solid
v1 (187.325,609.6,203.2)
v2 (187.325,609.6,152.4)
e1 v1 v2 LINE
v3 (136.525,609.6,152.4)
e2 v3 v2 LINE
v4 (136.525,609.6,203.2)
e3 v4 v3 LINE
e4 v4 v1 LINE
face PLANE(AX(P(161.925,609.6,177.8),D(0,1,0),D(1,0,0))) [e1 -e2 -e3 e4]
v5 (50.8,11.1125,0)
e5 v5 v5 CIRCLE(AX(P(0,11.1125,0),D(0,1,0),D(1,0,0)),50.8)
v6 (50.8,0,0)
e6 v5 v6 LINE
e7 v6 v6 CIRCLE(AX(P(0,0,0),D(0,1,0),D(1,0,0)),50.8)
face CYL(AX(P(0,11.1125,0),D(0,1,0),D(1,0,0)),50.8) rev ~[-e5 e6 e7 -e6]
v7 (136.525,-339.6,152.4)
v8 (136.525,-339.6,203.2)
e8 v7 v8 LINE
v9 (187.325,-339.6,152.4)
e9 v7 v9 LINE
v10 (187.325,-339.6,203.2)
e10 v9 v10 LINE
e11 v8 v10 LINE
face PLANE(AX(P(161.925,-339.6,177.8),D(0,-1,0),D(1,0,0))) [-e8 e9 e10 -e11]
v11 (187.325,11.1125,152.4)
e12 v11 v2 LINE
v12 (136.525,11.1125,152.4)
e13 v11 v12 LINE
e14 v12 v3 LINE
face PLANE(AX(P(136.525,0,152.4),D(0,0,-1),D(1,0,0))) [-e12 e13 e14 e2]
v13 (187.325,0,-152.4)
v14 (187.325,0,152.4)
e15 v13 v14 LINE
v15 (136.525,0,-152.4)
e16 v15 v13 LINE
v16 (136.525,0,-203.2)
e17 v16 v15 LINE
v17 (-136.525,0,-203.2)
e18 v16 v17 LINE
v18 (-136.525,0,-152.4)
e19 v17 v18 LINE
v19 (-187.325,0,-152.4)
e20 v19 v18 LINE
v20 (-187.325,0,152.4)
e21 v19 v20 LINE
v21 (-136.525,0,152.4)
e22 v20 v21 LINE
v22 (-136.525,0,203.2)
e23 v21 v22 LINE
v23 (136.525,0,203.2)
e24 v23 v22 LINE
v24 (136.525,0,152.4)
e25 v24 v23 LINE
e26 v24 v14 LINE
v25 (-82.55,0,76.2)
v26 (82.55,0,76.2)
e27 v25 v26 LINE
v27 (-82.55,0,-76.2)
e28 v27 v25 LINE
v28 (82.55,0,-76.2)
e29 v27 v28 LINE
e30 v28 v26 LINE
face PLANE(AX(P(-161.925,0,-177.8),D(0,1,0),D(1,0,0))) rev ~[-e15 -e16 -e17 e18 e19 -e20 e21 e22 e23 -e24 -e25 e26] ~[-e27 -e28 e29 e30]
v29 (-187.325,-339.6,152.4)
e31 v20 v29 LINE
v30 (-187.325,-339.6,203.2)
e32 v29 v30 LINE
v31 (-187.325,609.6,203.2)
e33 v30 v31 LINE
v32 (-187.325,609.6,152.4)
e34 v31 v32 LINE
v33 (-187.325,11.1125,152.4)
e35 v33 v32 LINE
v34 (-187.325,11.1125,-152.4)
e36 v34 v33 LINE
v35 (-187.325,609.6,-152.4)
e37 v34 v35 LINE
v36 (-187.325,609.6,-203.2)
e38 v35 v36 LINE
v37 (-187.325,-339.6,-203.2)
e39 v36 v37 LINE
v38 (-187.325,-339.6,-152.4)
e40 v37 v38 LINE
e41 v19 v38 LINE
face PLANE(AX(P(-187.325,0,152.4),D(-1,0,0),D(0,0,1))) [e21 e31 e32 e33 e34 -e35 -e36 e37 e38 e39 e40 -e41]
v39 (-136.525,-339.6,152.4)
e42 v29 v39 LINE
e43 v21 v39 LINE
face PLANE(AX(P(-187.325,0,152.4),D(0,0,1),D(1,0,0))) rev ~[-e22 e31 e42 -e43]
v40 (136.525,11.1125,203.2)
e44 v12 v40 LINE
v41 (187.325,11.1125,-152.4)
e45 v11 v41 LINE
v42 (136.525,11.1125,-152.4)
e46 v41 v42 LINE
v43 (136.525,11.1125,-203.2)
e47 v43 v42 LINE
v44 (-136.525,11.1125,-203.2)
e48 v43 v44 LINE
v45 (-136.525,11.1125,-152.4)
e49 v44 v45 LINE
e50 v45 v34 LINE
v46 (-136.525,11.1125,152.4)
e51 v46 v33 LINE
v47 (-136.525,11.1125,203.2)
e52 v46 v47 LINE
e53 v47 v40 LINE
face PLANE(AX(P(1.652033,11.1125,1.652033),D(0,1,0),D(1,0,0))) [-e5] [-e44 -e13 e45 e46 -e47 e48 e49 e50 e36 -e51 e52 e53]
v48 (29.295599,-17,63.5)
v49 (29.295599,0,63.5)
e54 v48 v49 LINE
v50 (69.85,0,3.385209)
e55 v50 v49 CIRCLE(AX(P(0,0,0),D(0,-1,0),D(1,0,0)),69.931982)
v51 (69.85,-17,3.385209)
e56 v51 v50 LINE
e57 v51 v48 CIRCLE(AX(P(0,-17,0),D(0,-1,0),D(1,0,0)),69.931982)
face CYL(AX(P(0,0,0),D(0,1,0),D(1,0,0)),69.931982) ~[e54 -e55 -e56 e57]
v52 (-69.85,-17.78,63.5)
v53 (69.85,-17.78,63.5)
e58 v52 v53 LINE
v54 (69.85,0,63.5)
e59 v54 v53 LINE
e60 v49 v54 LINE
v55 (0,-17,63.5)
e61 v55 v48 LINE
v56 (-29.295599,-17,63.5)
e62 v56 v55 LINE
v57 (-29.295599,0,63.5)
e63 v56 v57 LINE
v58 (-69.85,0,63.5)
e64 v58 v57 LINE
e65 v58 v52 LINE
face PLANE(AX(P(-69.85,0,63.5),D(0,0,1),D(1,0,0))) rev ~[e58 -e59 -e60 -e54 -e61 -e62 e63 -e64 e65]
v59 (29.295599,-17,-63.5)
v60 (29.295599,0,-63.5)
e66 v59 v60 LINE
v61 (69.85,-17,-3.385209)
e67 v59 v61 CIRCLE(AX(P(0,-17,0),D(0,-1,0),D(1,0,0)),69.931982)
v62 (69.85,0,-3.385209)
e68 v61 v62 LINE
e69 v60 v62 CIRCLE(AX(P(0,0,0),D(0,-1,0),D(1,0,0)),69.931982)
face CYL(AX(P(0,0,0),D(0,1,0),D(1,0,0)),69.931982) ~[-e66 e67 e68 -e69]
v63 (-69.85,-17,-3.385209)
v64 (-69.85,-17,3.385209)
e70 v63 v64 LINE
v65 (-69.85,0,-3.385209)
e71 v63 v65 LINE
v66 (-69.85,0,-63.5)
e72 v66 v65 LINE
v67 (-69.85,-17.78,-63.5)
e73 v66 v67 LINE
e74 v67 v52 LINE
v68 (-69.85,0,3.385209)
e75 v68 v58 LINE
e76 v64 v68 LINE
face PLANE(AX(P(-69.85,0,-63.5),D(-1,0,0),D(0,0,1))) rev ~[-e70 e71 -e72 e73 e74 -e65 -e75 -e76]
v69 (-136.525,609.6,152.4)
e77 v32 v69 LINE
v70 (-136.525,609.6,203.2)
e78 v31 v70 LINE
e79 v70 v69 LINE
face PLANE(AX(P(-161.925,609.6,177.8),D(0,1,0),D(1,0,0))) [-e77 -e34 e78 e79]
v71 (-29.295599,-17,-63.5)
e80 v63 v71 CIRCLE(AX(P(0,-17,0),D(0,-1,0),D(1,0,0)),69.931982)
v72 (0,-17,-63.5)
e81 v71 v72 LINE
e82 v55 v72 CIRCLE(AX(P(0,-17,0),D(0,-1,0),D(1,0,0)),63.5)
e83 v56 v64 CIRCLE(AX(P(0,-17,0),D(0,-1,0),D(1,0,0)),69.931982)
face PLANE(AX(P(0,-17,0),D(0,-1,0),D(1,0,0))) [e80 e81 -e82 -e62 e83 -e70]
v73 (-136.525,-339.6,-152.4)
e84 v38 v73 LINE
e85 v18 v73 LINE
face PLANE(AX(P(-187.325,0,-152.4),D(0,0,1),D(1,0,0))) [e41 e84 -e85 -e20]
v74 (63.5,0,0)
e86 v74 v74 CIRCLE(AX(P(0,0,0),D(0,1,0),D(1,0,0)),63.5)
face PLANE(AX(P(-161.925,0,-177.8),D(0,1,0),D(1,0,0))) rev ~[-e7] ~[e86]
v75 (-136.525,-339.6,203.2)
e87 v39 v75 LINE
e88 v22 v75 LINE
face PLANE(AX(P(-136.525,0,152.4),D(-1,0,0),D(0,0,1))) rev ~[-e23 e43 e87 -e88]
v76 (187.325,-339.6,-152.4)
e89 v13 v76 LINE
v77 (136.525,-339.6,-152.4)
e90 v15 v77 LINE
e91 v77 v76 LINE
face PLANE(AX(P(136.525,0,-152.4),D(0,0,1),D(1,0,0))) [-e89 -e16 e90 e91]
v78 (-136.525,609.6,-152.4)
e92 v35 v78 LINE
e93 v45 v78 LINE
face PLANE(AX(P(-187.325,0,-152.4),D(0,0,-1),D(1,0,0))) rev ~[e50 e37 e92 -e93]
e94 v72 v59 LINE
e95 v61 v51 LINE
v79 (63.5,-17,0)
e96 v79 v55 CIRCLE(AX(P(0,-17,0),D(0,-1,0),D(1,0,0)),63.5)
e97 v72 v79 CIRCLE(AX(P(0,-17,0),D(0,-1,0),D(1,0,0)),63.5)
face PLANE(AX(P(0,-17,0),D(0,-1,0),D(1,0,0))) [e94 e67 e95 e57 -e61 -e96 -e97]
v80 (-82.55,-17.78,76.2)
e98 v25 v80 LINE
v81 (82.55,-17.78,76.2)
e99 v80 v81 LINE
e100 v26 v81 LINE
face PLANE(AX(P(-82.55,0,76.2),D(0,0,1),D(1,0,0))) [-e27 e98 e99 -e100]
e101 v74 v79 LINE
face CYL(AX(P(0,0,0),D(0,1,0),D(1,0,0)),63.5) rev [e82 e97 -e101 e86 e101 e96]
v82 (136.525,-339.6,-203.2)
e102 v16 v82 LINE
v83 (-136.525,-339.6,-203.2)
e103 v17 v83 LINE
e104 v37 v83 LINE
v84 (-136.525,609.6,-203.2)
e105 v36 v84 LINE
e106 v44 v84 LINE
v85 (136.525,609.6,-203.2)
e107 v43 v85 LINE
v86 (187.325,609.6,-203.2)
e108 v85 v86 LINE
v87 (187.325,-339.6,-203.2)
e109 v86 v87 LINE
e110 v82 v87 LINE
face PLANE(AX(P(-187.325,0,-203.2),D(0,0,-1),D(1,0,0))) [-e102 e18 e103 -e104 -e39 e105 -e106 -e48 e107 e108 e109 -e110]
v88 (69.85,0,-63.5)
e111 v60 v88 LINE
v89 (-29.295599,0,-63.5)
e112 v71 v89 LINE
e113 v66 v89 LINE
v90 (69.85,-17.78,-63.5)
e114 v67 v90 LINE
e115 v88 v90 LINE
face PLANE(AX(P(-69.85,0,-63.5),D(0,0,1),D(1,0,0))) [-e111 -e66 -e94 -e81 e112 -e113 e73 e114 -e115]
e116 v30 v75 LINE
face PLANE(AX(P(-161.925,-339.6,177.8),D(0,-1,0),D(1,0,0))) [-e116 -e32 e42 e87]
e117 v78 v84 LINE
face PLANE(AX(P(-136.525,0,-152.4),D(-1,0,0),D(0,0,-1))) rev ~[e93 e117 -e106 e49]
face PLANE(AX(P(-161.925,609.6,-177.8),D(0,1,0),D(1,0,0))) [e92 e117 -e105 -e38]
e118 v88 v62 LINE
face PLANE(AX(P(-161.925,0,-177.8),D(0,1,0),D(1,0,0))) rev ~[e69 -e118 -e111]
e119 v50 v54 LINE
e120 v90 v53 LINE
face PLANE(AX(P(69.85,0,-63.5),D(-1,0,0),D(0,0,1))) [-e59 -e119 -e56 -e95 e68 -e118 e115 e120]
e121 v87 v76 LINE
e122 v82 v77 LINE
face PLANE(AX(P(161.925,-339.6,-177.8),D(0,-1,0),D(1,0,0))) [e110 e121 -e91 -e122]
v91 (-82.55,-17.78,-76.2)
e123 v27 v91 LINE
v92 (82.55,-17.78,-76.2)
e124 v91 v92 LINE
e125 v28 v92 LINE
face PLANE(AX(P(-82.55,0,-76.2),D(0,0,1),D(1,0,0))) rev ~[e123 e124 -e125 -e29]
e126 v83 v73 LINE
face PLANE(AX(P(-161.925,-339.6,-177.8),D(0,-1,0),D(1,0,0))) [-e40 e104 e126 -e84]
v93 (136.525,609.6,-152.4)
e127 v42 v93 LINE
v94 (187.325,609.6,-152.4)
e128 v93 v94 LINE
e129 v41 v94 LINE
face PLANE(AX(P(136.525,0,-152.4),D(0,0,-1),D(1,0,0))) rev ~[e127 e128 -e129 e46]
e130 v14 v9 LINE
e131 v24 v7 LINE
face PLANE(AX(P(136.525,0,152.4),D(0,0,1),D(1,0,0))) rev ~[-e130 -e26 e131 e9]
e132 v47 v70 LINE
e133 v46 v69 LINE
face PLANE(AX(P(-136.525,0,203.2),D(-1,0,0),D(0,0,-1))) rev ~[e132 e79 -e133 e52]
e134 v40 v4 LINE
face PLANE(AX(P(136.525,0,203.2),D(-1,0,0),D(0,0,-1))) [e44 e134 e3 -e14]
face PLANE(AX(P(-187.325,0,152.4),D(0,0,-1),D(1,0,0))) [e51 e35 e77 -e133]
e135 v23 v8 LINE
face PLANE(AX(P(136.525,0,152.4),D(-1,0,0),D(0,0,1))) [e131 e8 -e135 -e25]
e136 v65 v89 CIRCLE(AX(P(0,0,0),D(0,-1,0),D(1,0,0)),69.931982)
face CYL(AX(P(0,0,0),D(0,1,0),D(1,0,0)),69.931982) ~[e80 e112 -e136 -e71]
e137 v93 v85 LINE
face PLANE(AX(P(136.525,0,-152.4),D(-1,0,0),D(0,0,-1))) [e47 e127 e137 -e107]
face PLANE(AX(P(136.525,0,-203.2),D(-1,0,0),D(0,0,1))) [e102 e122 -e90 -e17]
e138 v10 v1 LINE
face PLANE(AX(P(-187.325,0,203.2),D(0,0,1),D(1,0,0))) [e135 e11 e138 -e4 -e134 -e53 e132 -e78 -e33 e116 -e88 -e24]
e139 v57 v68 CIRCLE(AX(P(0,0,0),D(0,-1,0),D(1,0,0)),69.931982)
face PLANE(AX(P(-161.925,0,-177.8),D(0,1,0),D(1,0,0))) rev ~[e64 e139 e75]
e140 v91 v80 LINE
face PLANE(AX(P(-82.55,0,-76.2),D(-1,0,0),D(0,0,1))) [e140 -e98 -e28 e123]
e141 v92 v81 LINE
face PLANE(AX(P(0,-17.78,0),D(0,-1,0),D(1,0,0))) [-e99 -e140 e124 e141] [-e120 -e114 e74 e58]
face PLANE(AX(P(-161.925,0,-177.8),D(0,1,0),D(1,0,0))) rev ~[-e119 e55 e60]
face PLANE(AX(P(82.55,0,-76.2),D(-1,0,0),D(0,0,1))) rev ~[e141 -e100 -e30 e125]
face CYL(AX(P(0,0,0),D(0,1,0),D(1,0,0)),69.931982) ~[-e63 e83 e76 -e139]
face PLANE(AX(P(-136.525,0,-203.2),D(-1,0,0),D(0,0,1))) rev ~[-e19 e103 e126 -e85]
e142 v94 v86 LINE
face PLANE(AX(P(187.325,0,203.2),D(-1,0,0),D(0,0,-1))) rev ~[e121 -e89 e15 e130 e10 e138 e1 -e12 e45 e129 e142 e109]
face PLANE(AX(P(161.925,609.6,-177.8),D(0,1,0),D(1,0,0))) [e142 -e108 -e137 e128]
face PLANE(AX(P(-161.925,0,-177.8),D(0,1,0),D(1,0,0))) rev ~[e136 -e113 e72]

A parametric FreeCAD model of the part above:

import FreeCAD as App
import Part
import Sketcher
Q = App.Units.Quantity


def add_polygon(sketch, points):
    """Adds a closed chain of lines whose ends are joined by coincident constraints."""
    first, n = sketch.GeometryCount, len(points)
    for a, b in zip(points, points[1:] + points[:1]):
        sketch.addGeometry(Part.LineSegment(App.Vector(*a, 0), App.Vector(*b, 0)), False)
    for i in range(n):
        sketch.addConstraint(Sketcher.Constraint("Coincident", first + i, 2, first + (i + 1) % n, 1))

doc = App.newDocument("Part")
body = doc.addObject("PartDesign::Body", "Body")

# Sketch on XZ plane
sketch1 = body.newObject("Sketcher::SketchObject", "Sketch")
sketch1.AttachmentSupport = (doc.getObject("XZ_Plane"), [""])
sketch1.MapMode = "FlatFace"
add_polygon(sketch1, [(-137, -152), (-187, -152), (-187, 203), (187, 203), (187, -203), (-137, -203)])  # lines 0-5
sketch1.addConstraint(Sketcher.Constraint("Horizontal", 0))
sketch1.addConstraint(Sketcher.Constraint("Vertical", 1))
sketch1.addConstraint(Sketcher.Constraint("Horizontal", 2))
sketch1.addConstraint(Sketcher.Constraint("Vertical", 3))
sketch1.addConstraint(Sketcher.Constraint("Horizontal", 4))
sketch1.addConstraint(Sketcher.Constraint("Vertical", 5))
sketch1.addConstraint(Sketcher.Constraint("Symmetric", 1, 2, 3, 2, -1, 1))
sketch1.addConstraint(Sketcher.Constraint("Equal", 0, 5))
sketch1.addConstraint(Sketcher.Constraint("DistanceX", 0, 2, 0, 1, Q("2 in")))
sketch1.addConstraint(Sketcher.Constraint("DistanceY", 1, 1, 1, 2, Q("14 in")))
sketch1.addConstraint(Sketcher.Constraint("DistanceX", 2, 1, 2, 2, Q("14.75 in")))
pad1 = body.newObject("PartDesign::Pad", "Pad")
pad1.Profile = sketch1
pad1.Length = Q("0.4375 in")
pad1.Reversed = True

# Sketch on XZ plane
sketch2 = body.newObject("Sketcher::SketchObject", "Sketch001")
sketch2.AttachmentSupport = (doc.getObject("XZ_Plane"), [""])
sketch2.MapMode = "FlatFace"
add_polygon(sketch2, [(-187, -203), (-187, -152), (-137, -152), (-137, -203)])  # lines 0-3
sketch2.addConstraint(Sketcher.Constraint("Vertical", 0))
sketch2.addConstraint(Sketcher.Constraint("Horizontal", 1))
sketch2.addConstraint(Sketcher.Constraint("Vertical", 2))
sketch2.addConstraint(Sketcher.Constraint("Horizontal", 3))
sketch2.addConstraint(Sketcher.Constraint("Equal", 3, 0))
sketch2.addConstraint(Sketcher.Constraint("DistanceX", 1, 1, 1, 2, Q("2 in")))
sketch2.addConstraint(Sketcher.Constraint("DistanceY", 0, 2, -1, 1, Q("6 in")))
sketch2.addConstraint(Sketcher.Constraint("DistanceX", 0, 2, -1, 1, Q("7.375 in")))
pad2 = body.newObject("PartDesign::Pad", "Pad001")
pad2.Profile = sketch2
pad2.Length = Q("24 in")
pad2.Reversed = True

# Sketch on XZ plane
sketch3 = body.newObject("Sketcher::SketchObject", "Sketch002")
sketch3.AttachmentSupport = (doc.getObject("XZ_Plane"), [""])
sketch3.MapMode = "FlatFace"
add_polygon(sketch3, [(-187, 152), (-187, 203), (-137, 203), (-137, 152)])  # lines 0-3
sketch3.addConstraint(Sketcher.Constraint("Vertical", 0))
sketch3.addConstraint(Sketcher.Constraint("Horizontal", 1))
sketch3.addConstraint(Sketcher.Constraint("Vertical", 2))
sketch3.addConstraint(Sketcher.Constraint("Horizontal", 3))
sketch3.addConstraint(Sketcher.Constraint("Equal", 3, 0))
sketch3.addConstraint(Sketcher.Constraint("DistanceX", 1, 1, 1, 2, Q("2 in")))
sketch3.addConstraint(Sketcher.Constraint("DistanceY", -1, 1, 0, 2, Q("8 in")))
sketch3.addConstraint(Sketcher.Constraint("DistanceX", 0, 2, -1, 1, Q("7.375 in")))
pad3 = body.newObject("PartDesign::Pad", "Pad002")
pad3.Profile = sketch3
pad3.Length = Q("24 in")
pad3.Reversed = True

# Sketch on XZ plane
sketch4 = body.newObject("Sketcher::SketchObject", "Sketch003")
sketch4.AttachmentSupport = (doc.getObject("XZ_Plane"), [""])
sketch4.MapMode = "FlatFace"
add_polygon(sketch4, [(137, -203), (137, -152), (187, -152), (187, -203)])  # lines 0-3
sketch4.addConstraint(Sketcher.Constraint("Vertical", 0))
sketch4.addConstraint(Sketcher.Constraint("Horizontal", 1))
sketch4.addConstraint(Sketcher.Constraint("Vertical", 2))
sketch4.addConstraint(Sketcher.Constraint("Horizontal", 3))
sketch4.addConstraint(Sketcher.Constraint("Equal", 3, 0))
sketch4.addConstraint(Sketcher.Constraint("DistanceX", 1, 1, 1, 2, Q("2 in")))
sketch4.addConstraint(Sketcher.Constraint("DistanceY", 0, 2, -1, 1, Q("6 in")))
sketch4.addConstraint(Sketcher.Constraint("DistanceX", -1, 1, 0, 2, Q("5.375 in")))
pad4 = body.newObject("PartDesign::Pad", "Pad003")
pad4.Profile = sketch4
pad4.Length = Q("24 in")
pad4.Reversed = True

# Sketch on XZ plane
sketch5 = body.newObject("Sketcher::SketchObject", "Sketch004")
sketch5.AttachmentSupport = (doc.getObject("XZ_Plane"), [""])
sketch5.MapMode = "FlatFace"
add_polygon(sketch5, [(137, 152), (137, 203), (187, 203), (187, 152)])  # lines 0-3
sketch5.addConstraint(Sketcher.Constraint("Vertical", 0))
sketch5.addConstraint(Sketcher.Constraint("Horizontal", 1))
sketch5.addConstraint(Sketcher.Constraint("Vertical", 2))
sketch5.addConstraint(Sketcher.Constraint("Horizontal", 3))
sketch5.addConstraint(Sketcher.Constraint("Equal", 3, 0))
sketch5.addConstraint(Sketcher.Constraint("DistanceX", 1, 1, 1, 2, Q("2 in")))
sketch5.addConstraint(Sketcher.Constraint("DistanceY", -1, 1, 0, 2, Q("8 in")))
sketch5.addConstraint(Sketcher.Constraint("DistanceX", -1, 1, 0, 2, Q("5.375 in")))
pad5 = body.newObject("PartDesign::Pad", "Pad004")
pad5.Profile = sketch5
pad5.Length = Q("24 in")
pad5.Reversed = True

# Sketch on XZ plane
sketch6 = body.newObject("Sketcher::SketchObject", "Sketch005")
sketch6.AttachmentSupport = (doc.getObject("XZ_Plane"), [""])
sketch6.MapMode = "FlatFace"
sketch6.AttachmentOffset = App.Placement(App.Vector(0, 0, -0.4375 * 25.4), App.Rotation())
sketch6.addGeometry(Part.Circle(App.Vector(0, 0, 0), App.Vector(0, 0, 1), 51), False)
sketch6.addConstraint(Sketcher.Constraint("Coincident", 0, 3, -1, 1))
sketch6.addConstraint(Sketcher.Constraint("Diameter", 0, Q("4 in")))
pocket1 = body.newObject("PartDesign::Pocket", "Pocket")
pocket1.Profile = sketch6
pocket1.Type = "ThroughAll"
pocket1.Reversed = True

# Sketch on XZ plane
sketch7 = body.newObject("Sketcher::SketchObject", "Sketch006")
sketch7.AttachmentSupport = (doc.getObject("XZ_Plane"), [""])
sketch7.MapMode = "FlatFace"
add_polygon(sketch7, [(-83, 76), (-83, -76), (83, -76), (83, 76)])  # lines 0-3
add_polygon(sketch7, [(70, -64), (-70, -64), (-70, 64), (70, 64)])  # lines 4-7
sketch7.addConstraint(Sketcher.Constraint("Vertical", 0))
sketch7.addConstraint(Sketcher.Constraint("Horizontal", 1))
sketch7.addConstraint(Sketcher.Constraint("Vertical", 2))
sketch7.addConstraint(Sketcher.Constraint("Horizontal", 3))
sketch7.addConstraint(Sketcher.Constraint("Horizontal", 4))
sketch7.addConstraint(Sketcher.Constraint("Vertical", 5))
sketch7.addConstraint(Sketcher.Constraint("Horizontal", 6))
sketch7.addConstraint(Sketcher.Constraint("Vertical", 7))
sketch7.addConstraint(Sketcher.Constraint("Symmetric", 0, 2, 2, 2, -1, 1))
sketch7.addConstraint(Sketcher.Constraint("Symmetric", 4, 2, 6, 2, -1, 1))
sketch7.addConstraint(Sketcher.Constraint("DistanceY", 0, 2, 0, 1, Q("6 in")))
sketch7.addConstraint(Sketcher.Constraint("DistanceY", 5, 1, 5, 2, Q("5 in")))
sketch7.addConstraint(Sketcher.Constraint("DistanceX", 1, 1, 1, 2, Q("6.5 in")))
sketch7.addConstraint(Sketcher.Constraint("DistanceX", 4, 2, 4, 1, Q("5.5 in")))
pad6 = body.newObject("PartDesign::Pad", "Pad005")
pad6.Profile = sketch7
pad6.Length = Q("0.7 in")

# Sketch on XZ plane
sketch8 = body.newObject("Sketcher::SketchObject", "Sketch007")
sketch8.AttachmentSupport = (doc.getObject("XZ_Plane"), [""])
sketch8.MapMode = "FlatFace"
add_polygon(sketch8, [(-187, 203), (-187, 152), (-137, 152), (-137, 203)])  # lines 0-3
add_polygon(sketch8, [(137, 203), (137, 152), (187, 152), (187, 203)])  # lines 4-7
add_polygon(sketch8, [(137, -152), (137, -203), (187, -203), (187, -152)])  # lines 8-11
add_polygon(sketch8, [(-187, -152), (-187, -203), (-137, -203), (-137, -152)])  # lines 12-15
sketch8.addConstraint(Sketcher.Constraint("Vertical", 0))
sketch8.addConstraint(Sketcher.Constraint("Horizontal", 1))
sketch8.addConstraint(Sketcher.Constraint("Vertical", 2))
sketch8.addConstraint(Sketcher.Constraint("Horizontal", 3))
sketch8.addConstraint(Sketcher.Constraint("Vertical", 4))
sketch8.addConstraint(Sketcher.Constraint("Horizontal", 5))
sketch8.addConstraint(Sketcher.Constraint("Vertical", 6))
sketch8.addConstraint(Sketcher.Constraint("Horizontal", 7))
sketch8.addConstraint(Sketcher.Constraint("Vertical", 8))
sketch8.addConstraint(Sketcher.Constraint("Horizontal", 9))
sketch8.addConstraint(Sketcher.Constraint("Vertical", 10))
sketch8.addConstraint(Sketcher.Constraint("Horizontal", 11))
sketch8.addConstraint(Sketcher.Constraint("Vertical", 12))
sketch8.addConstraint(Sketcher.Constraint("Horizontal", 13))
sketch8.addConstraint(Sketcher.Constraint("Vertical", 14))
sketch8.addConstraint(Sketcher.Constraint("Horizontal", 15))
sketch8.addConstraint(Sketcher.Constraint("Symmetric", 2, 2, 8, 2, -1, 1))
sketch8.addConstraint(Sketcher.Constraint("Symmetric", 0, 2, 10, 2, -1, 1))
sketch8.addConstraint(Sketcher.Constraint("Symmetric", 6, 2, 12, 2, -1, 1))
sketch8.addConstraint(Sketcher.Constraint("Symmetric", 4, 2, 14, 2, -1, 1))
sketch8.addConstraint(Sketcher.Constraint("Symmetric", 1, 2, 4, 2, -2))
sketch8.addConstraint(Sketcher.Constraint("Symmetric", 3, 2, 6, 2, -2))
sketch8.addConstraint(Sketcher.Constraint("Equal", 15, 0))
sketch8.addConstraint(Sketcher.Constraint("DistanceX", 1, 1, 1, 2, Q("2 in")))
sketch8.addConstraint(Sketcher.Constraint("DistanceY", -1, 1, 0, 2, Q("6 in")))
sketch8.addConstraint(Sketcher.Constraint("DistanceX", 1, 2, 4, 2, Q("10.75 in")))
pad7 = body.newObject("PartDesign::Pad", "Pad006")
pad7.Profile = sketch8
pad7.Length = 339.6

# Sketch on XZ plane
sketch9 = body.newObject("Sketcher::SketchObject", "Sketch008")
sketch9.AttachmentSupport = (doc.getObject("XZ_Plane"), [""])
sketch9.MapMode = "FlatFace"
sketch9.addGeometry(Part.Circle(App.Vector(0, 0, 0), App.Vector(0, 0, 1), 70), False)
sketch9.addGeometry(Part.Circle(App.Vector(0, 0, 0), App.Vector(0, 0, 1), 64), False)
sketch9.addConstraint(Sketcher.Constraint("Coincident", 0, 3, -1, 1))
sketch9.addConstraint(Sketcher.Constraint("Coincident", 1, 3, -1, 1))
sketch9.addConstraint(Sketcher.Constraint("Diameter", 1, Q("5 in")))
sketch9.addConstraint(Sketcher.Constraint("Diameter", 0, Q("139.863964 mm")))
pad8 = body.newObject("PartDesign::Pad", "Pad007")
pad8.Profile = sketch9
pad8.Length = 17

doc.recompute()
